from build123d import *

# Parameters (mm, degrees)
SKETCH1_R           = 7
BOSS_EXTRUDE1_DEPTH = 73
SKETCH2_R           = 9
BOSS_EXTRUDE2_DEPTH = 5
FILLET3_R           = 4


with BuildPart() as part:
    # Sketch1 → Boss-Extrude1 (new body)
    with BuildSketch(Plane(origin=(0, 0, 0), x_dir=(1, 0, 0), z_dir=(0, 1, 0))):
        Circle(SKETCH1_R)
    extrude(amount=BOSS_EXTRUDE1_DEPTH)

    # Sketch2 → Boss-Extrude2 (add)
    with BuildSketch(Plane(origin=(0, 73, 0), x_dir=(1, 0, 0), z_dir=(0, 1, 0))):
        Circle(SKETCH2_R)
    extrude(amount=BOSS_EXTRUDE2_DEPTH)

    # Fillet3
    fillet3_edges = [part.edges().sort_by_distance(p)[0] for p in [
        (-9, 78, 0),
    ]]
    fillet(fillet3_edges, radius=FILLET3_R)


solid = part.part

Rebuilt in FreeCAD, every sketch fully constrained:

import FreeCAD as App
import Part
import Sketcher
Q = App.Units.Quantity


def edges_at(feature, points):
    """Names of the edges that pass closest to the given points."""
    edges = feature.Shape.Edges
    near = lambda p: min(range(len(edges)), key=lambda i: edges[i].distToShape(Part.Vertex(*p))[0])
    return sorted({f"Edge{near(p) + 1}" for p in points})

doc = App.newDocument("Part")
params = doc.addObject("Spreadsheet::Sheet", "Params")
for row, (alias, value) in enumerate([
    ("sketch1_diameter", "14 mm"),
    ("pad1_length", "73 mm"),
    ("sketch2_diameter", "18 mm"),
    ("pad2_length", "5 mm"),
    ("fillet_radius", "4 mm"),
], start=1):
    params.set(f"A{row}", alias)
    params.set(f"B{row}", "=" + value)
    params.setAlias(f"B{row}", alias)

body = doc.addObject("PartDesign::Body", "Body")

# Sketch on XZ plane
sketch1 = body.newObject("Sketcher::SketchObject", "Sketch")
sketch1.AttachmentSupport = (doc.getObject("XZ_Plane"), [""])
sketch1.MapMode = "FlatFace"
sketch1.addGeometry(Part.Circle(App.Vector(0, 0, 0), App.Vector(0, 0, 1), 7), False)
sketch1.addConstraint([
    Sketcher.Constraint("Coincident", 0, 3, -1, 1),
    Sketcher.Constraint("Diameter", 0, Q("14 mm")),
])
sketch1.setExpression("Constraints[1]", "Params.sketch1_diameter")
pad1 = body.newObject("PartDesign::Pad", "Pad")
pad1.Profile = sketch1
pad1.setExpression("Length", "Params.pad1_length")
pad1.Reversed = True

# Sketch on XZ plane
sketch2 = body.newObject("Sketcher::SketchObject", "Sketch001")
sketch2.AttachmentSupport = (doc.getObject("XZ_Plane"), [""])
sketch2.MapMode = "FlatFace"
sketch2.AttachmentOffset = App.Placement(App.Vector(0, 0, -73), App.Rotation())
sketch2.addGeometry(Part.Circle(App.Vector(0, 0, 0), App.Vector(0, 0, 1), 9), False)
sketch2.addConstraint([
    Sketcher.Constraint("Coincident", 0, 3, -1, 1),
    Sketcher.Constraint("Diameter", 0, Q("18 mm")),
])
sketch2.setExpression("Constraints[1]", "Params.sketch2_diameter")
pad2 = body.newObject("PartDesign::Pad", "Pad001")
pad2.Profile = sketch2
pad2.setExpression("Length", "Params.pad2_length")
pad2.Reversed = True
doc.recompute()

fillet = body.newObject("PartDesign::Fillet", "Fillet")
fillet.Base = (pad2, edges_at(pad2, [(-9, 78, 0)]))
fillet.setExpression("Radius", "Params.fillet_radius")

doc.recompute()
